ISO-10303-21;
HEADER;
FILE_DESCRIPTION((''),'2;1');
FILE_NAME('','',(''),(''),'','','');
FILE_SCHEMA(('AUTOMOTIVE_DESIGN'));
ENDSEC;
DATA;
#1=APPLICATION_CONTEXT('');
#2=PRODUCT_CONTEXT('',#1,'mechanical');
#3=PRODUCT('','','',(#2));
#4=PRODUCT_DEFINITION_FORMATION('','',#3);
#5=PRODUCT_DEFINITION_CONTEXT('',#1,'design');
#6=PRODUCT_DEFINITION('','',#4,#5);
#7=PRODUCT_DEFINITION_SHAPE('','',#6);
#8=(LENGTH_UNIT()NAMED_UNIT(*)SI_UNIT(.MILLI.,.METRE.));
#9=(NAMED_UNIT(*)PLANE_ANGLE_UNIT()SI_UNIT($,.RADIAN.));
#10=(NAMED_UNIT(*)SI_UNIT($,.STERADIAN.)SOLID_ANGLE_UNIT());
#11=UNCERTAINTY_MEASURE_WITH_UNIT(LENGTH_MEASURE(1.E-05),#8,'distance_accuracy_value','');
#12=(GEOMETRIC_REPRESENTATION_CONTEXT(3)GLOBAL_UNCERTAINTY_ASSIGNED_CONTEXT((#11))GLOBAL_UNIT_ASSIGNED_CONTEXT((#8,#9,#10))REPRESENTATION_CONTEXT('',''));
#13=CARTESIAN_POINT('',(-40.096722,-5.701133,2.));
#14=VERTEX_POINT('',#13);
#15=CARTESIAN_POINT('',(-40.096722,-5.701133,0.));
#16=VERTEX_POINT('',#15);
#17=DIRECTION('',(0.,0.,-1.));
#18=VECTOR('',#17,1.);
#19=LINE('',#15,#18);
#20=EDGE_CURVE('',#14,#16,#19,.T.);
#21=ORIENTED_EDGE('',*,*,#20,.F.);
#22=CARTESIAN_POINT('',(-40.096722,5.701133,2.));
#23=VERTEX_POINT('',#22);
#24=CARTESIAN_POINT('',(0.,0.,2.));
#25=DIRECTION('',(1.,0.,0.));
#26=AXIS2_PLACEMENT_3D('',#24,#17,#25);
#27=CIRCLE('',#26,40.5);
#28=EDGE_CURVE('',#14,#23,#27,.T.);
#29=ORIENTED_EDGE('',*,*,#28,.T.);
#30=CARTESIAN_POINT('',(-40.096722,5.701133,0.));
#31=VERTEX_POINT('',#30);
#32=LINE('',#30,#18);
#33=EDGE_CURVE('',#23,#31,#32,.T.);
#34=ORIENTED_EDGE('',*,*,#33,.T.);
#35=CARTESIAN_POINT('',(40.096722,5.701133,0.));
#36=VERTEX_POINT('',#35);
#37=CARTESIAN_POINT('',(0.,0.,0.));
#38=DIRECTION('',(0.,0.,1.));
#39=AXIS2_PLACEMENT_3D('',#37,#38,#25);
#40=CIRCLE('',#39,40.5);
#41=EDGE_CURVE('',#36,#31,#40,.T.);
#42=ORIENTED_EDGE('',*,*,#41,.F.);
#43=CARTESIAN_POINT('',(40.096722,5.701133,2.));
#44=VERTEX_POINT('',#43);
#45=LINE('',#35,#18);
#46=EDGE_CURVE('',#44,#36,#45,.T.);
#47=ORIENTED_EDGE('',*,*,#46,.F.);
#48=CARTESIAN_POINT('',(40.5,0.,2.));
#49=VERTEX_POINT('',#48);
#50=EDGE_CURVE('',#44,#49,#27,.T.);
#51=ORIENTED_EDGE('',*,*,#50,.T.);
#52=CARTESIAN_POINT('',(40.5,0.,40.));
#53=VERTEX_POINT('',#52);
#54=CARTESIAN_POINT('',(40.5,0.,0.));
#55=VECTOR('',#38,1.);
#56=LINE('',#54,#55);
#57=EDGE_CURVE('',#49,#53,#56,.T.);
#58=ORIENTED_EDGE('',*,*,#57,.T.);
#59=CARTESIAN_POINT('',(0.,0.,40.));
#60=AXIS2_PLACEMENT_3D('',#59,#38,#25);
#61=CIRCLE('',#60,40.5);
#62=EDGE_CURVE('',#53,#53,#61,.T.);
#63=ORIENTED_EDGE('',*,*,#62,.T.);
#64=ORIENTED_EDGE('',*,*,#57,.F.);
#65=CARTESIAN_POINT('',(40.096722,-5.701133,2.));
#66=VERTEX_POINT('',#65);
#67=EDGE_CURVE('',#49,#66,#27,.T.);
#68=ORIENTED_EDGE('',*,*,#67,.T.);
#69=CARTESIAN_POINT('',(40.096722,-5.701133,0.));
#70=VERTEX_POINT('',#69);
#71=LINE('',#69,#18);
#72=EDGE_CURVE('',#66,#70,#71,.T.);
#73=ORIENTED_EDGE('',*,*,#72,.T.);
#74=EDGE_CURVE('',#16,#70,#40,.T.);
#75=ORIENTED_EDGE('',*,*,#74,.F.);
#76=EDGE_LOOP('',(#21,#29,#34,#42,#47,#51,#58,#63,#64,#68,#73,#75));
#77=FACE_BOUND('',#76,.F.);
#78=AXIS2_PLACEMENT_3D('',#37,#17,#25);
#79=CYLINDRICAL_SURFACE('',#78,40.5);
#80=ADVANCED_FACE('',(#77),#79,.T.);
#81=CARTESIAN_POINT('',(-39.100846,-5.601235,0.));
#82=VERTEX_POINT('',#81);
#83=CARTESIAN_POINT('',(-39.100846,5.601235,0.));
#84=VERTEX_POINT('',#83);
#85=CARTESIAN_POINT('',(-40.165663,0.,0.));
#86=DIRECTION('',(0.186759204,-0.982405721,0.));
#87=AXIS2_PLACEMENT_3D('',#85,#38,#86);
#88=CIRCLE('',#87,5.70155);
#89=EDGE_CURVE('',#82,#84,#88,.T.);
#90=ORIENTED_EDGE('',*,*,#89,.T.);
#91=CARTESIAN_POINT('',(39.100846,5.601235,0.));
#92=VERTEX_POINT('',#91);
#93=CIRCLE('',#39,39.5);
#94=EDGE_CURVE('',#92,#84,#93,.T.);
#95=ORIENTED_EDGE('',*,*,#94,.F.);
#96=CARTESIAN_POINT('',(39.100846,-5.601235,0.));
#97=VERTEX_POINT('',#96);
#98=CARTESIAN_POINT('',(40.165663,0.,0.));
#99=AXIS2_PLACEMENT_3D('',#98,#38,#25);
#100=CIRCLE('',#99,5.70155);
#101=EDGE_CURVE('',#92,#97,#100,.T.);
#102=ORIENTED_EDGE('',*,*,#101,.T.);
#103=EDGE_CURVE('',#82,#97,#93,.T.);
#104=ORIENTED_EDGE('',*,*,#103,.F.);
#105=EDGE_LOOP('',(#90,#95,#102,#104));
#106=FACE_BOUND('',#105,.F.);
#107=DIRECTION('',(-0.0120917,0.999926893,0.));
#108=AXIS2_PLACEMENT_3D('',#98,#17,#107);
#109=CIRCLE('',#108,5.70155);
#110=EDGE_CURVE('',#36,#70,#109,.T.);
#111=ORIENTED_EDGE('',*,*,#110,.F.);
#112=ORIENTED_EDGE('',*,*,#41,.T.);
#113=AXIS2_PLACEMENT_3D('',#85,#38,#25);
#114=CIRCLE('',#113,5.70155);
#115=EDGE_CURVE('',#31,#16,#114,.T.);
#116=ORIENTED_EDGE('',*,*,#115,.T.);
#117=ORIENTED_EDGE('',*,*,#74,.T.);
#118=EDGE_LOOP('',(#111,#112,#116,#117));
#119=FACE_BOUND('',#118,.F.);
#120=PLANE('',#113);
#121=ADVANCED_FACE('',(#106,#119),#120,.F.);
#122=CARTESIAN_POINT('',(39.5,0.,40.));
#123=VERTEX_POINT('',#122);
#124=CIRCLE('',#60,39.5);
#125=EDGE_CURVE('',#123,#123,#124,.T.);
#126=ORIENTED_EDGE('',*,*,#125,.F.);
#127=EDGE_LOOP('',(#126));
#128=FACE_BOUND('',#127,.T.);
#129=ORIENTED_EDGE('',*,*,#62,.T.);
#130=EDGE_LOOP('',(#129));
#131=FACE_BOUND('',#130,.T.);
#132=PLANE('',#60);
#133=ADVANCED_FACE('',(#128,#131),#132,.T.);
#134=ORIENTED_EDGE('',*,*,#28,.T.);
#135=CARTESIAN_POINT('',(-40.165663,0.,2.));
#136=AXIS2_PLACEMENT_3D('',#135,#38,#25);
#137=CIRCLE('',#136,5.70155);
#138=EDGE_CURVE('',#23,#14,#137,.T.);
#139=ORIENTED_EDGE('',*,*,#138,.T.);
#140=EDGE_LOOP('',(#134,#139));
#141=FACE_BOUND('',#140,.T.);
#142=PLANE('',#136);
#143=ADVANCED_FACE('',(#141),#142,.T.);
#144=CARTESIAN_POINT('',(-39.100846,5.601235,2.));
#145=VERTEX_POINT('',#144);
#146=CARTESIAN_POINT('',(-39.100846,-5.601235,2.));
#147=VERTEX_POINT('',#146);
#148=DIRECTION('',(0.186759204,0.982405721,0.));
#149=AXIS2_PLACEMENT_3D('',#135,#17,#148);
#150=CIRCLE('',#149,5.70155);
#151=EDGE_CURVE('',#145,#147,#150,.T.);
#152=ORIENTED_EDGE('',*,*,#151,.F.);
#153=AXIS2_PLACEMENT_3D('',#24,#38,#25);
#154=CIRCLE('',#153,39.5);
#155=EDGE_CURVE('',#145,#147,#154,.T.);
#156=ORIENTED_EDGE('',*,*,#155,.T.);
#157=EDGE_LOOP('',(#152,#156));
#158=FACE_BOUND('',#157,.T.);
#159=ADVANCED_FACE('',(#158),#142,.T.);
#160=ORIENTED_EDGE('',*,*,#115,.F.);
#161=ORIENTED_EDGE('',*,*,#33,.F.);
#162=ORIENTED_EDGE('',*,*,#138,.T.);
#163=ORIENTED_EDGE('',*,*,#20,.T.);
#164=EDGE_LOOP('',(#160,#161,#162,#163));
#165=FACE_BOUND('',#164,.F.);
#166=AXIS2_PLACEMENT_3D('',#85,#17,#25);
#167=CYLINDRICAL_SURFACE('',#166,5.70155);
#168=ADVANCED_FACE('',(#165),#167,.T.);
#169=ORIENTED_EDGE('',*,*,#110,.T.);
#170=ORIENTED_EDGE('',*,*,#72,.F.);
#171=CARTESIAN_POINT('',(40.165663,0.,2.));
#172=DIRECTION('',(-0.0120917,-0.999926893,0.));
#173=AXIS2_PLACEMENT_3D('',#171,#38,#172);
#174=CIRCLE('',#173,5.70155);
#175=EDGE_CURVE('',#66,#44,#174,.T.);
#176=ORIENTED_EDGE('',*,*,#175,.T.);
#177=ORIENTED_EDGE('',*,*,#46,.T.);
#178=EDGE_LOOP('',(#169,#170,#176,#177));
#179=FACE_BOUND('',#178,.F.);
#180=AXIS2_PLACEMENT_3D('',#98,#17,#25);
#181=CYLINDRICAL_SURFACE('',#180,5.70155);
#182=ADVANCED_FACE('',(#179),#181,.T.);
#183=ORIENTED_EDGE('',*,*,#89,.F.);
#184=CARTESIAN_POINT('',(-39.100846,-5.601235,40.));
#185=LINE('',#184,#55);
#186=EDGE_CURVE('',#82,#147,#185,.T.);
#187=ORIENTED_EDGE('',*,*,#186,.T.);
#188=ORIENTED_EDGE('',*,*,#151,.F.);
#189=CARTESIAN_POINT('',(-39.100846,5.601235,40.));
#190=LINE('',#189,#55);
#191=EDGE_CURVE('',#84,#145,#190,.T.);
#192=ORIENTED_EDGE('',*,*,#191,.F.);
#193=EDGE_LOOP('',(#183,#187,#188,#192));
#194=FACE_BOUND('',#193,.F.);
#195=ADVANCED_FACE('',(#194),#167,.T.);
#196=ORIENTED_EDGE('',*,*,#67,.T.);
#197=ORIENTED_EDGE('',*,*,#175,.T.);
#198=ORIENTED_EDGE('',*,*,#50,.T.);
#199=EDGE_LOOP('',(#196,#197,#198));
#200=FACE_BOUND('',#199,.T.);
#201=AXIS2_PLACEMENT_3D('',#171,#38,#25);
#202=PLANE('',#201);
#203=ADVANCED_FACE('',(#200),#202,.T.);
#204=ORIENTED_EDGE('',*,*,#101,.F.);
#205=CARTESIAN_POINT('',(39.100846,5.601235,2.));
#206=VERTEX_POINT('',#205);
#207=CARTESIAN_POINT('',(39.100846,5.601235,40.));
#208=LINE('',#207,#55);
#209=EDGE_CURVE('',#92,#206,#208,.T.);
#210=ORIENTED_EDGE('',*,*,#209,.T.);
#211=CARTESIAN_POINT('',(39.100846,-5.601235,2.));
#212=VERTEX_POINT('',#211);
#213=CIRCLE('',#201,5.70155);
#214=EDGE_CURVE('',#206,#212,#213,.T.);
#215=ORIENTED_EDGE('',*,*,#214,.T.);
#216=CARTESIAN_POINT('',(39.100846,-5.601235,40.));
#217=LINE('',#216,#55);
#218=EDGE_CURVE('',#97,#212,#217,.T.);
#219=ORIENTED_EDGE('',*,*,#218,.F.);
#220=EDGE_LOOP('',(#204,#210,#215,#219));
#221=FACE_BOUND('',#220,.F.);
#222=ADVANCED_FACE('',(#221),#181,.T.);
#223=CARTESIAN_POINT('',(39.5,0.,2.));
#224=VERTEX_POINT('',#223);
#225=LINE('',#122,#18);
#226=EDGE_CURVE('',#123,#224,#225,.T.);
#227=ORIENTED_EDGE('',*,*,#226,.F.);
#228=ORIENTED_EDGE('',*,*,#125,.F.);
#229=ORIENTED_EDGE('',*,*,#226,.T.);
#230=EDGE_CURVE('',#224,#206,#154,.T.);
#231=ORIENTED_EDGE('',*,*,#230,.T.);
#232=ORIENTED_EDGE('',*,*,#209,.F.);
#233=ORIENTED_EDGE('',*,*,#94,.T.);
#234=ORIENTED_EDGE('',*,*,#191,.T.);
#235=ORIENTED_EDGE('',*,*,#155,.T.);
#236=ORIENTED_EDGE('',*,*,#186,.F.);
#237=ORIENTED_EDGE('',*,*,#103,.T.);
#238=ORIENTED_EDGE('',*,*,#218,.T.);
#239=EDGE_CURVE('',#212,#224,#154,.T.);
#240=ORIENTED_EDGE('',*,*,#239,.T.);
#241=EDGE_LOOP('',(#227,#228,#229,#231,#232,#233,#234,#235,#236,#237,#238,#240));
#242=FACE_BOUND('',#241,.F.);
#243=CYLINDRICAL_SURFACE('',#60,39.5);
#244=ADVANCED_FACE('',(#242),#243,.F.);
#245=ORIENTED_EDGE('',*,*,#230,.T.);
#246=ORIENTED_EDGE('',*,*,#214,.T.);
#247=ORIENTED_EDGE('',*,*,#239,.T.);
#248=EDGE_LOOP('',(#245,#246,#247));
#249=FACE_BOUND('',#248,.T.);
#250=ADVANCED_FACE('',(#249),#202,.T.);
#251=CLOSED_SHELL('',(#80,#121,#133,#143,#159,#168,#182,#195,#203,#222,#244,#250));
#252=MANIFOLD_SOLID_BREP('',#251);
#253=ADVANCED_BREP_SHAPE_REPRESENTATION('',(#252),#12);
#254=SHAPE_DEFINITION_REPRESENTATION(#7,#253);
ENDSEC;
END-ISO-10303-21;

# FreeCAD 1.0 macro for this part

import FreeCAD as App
import Part
import Sketcher
from FreeCAD import Vector
Q = App.Units.Quantity

doc = App.newDocument("Part")
body = doc.addObject("PartDesign::Body", "Body")

sketch1 = body.newObject("Sketcher::SketchObject", "Sketch")
sketch1.AttachmentSupport = (doc.getObject("XY_Plane"), [""])
sketch1.MapMode = "FlatFace"
sketch1.addGeometry(Part.Circle(Vector(0, 0, 0), Vector(0, 0, 1), 40), False)
sketch1.addConstraint([
    Sketcher.Constraint("Coincident", 0, 3, -1, 1),
    Sketcher.Constraint("Diameter", 0, Q("81 mm")),
])
pad1 = body.newObject("PartDesign::Pad", "Pad")
pad1.Profile = sketch1
pad1.Length = 40

sketch2 = body.newObject("Sketcher::SketchObject", "Sketch001")
sketch2.AttachmentSupport = (doc.getObject("XY_Plane"), [""])
sketch2.MapMode = "FlatFace"
sketch2.AttachmentOffset = App.Placement(Vector(0, 0, 40), App.Rotation())
sketch2.addGeometry(Part.Circle(Vector(0, 0, 0), Vector(0, 0, 1), 40), False)
sketch2.addConstraint([
    Sketcher.Constraint("Coincident", 0, 3, -1, 1),
    Sketcher.Constraint("Diameter", 0, Q("79 mm")),
])
pocket1 = body.newObject("PartDesign::Pocket", "Pocket")
pocket1.Profile = sketch2
pocket1.Length = 42

sketch3 = body.newObject("Sketcher::SketchObject", "Sketch002")
sketch3.AttachmentSupport = (doc.getObject("XY_Plane"), [""])
sketch3.MapMode = "FlatFace"
sketch3.addGeometry([
    Part.Circle(Vector(-40, 0, 0), Vector(0, 0, 1), 6),
    Part.Circle(Vector(40, 0, 0), Vector(0, 0, 1), 6),
], False)
sketch3.addConstraint([
    Sketcher.Constraint("Equal", 0, 1),
    Sketcher.Constraint("Symmetric", 0, 3, 1, 3, -1, 1),
    Sketcher.Constraint("PointOnObject", 0, 3, -1),
    Sketcher.Constraint("Diameter", 0, Q("11.4031 mm")),
    Sketcher.Constraint("DistanceX", 0, 3, -1, 1, Q("40.165663 mm")),
])
pad2 = body.newObject("PartDesign::Pad", "Pad001")
pad2.Profile = sketch3
pad2.Length = 2

doc.recompute()
